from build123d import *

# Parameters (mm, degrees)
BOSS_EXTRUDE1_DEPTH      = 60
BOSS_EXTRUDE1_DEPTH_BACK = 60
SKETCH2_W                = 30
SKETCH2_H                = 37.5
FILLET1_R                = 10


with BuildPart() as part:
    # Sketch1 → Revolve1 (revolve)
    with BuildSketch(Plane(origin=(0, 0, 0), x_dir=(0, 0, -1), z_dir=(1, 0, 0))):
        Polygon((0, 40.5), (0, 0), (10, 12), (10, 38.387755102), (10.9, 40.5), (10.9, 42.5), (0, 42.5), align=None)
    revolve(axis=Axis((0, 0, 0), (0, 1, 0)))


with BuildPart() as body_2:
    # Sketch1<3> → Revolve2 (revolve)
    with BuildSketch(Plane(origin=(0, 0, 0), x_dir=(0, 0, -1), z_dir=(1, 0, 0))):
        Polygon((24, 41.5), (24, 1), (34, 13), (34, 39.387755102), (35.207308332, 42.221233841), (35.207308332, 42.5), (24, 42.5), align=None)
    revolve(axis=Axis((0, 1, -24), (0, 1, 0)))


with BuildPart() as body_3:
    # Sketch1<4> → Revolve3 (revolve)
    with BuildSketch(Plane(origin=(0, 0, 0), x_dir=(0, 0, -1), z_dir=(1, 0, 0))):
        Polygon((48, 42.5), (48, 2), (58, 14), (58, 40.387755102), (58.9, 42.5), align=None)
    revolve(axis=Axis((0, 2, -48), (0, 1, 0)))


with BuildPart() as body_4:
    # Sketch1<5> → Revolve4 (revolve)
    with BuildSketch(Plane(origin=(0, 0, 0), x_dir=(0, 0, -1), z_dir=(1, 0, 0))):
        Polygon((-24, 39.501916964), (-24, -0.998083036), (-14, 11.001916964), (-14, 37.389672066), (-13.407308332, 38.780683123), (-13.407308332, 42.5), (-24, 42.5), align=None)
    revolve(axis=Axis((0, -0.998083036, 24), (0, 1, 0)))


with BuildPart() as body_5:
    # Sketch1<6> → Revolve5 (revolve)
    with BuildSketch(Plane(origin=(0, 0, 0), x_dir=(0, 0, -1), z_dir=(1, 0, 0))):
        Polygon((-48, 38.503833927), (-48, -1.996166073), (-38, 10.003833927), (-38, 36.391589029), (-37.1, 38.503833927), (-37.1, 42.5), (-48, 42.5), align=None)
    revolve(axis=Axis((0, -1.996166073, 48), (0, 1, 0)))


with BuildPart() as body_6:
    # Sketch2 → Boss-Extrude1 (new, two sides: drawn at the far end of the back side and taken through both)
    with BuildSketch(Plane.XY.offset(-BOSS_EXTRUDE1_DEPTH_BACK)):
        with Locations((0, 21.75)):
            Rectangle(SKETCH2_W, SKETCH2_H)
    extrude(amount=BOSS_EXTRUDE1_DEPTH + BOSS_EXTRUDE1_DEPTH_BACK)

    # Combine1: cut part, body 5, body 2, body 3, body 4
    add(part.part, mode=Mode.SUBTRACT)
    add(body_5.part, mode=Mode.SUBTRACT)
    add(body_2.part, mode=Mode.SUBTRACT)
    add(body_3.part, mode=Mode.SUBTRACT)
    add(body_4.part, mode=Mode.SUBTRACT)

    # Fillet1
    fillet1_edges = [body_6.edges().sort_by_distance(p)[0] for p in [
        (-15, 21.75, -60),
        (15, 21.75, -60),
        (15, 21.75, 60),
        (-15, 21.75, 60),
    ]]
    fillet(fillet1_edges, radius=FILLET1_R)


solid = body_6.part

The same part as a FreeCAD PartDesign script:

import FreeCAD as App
import Part
import Sketcher
from FreeCAD import Vector


def edges_at(feature, points):
    """Names of the edges that pass closest to the given points."""
    edges = feature.Shape.Edges
    near = lambda p: min(range(len(edges)), key=lambda i: edges[i].distToShape(Part.Vertex(*p))[0])
    return sorted({f"Edge{near(p) + 1}" for p in points})

doc = App.newDocument("Part")
body = doc.addObject("PartDesign::Body", "Body")

# Sketch on YZ plane
sketch1 = body.newObject("Sketcher::SketchObject", "Sketch")
sketch1.AttachmentSupport = (doc.getObject("YZ_Plane"), [""])
sketch1.MapMode = "FlatFace"
sketch1.addGeometry([
    Part.LineSegment(Vector(0, 0, 0), Vector(12, -10, 0)),  # 0
    Part.LineSegment(Vector(12, -10, 0), Vector(38.4, -10, 0)),  # 1
    Part.LineSegment(Vector(38.4, -10, 0), Vector(40.5, -10.9, 0)),  # 2
    Part.LineSegment(Vector(40.5, -10.9, 0), Vector(42.5, -10.9, 0)),  # 3
    Part.LineSegment(Vector(42.5, -10.9, 0), Vector(42.5, 0, 0)),  # 4
    Part.LineSegment(Vector(42.5, 0, 0), Vector(0, 0, 0)),  # 5
], False)
sketch1.addConstraint([
    Sketcher.Constraint("Coincident", 0, 2, 1, 1),
    Sketcher.Constraint("Coincident", 1, 2, 2, 1),
    Sketcher.Constraint("Coincident", 2, 2, 3, 1),
    Sketcher.Constraint("Coincident", 3, 2, 4, 1),
    Sketcher.Constraint("Coincident", 4, 2, 5, 1),
    Sketcher.Constraint("Coincident", 5, 2, 0, 1),
    Sketcher.Constraint("Horizontal", 1),
    Sketcher.Constraint("Horizontal", 3),
    Sketcher.Constraint("Vertical", 4),
    Sketcher.Constraint("Horizontal", 5),
    Sketcher.Constraint("Coincident", 5, 2, -1, 1),
    Sketcher.Constraint("DistanceX", 3, 1, 3, 2, 2.0),
    Sketcher.Constraint("DistanceX", 5, 2, 5, 1, 42.5),
    Sketcher.Constraint("DistanceY", 4, 1, 4, 2, 10.9),
    Sketcher.Constraint("DistanceX", -1, 1, 0, 2, 12.0),
    Sketcher.Constraint("DistanceY", 0, 2, -1, 1, 10.0),
    Sketcher.Constraint("Distance", 2, 2.295992),
])
revolution = body.newObject("PartDesign::Revolution", "Revolution")
revolution.Profile = sketch1
revolution.ReferenceAxis = (sketch1, ["H_Axis"])
revolution.Angle = 360
body2 = doc.addObject("PartDesign::Body", "Body001")

# Sketch on YZ plane
sketch2 = body2.newObject("Sketcher::SketchObject", "Sketch001")
sketch2.AttachmentSupport = (doc.getObject("YZ_Plane001"), [""])
sketch2.MapMode = "FlatFace"
sketch2.addGeometry([
    Part.LineSegment(Vector(1, -24, 0), Vector(13, -34, 0)),  # 0
    Part.LineSegment(Vector(13, -34, 0), Vector(39.39, -34, 0)),  # 1
    Part.LineSegment(Vector(39.39, -34, 0), Vector(42.22, -35.21, 0)),  # 2
    Part.LineSegment(Vector(42.22, -35.21, 0), Vector(42.5, -35.21, 0)),  # 3
    Part.LineSegment(Vector(42.5, -35.21, 0), Vector(42.5, -24, 0)),  # 4
    Part.LineSegment(Vector(42.5, -24, 0), Vector(1, -24, 0)),  # 5
], False)
sketch2.addGeometry(Part.LineSegment(Vector(1, -24, 0), Vector(42.5, -24, 0)), True)  # axis
sketch2.addConstraint([
    Sketcher.Constraint("Coincident", 0, 2, 1, 1),
    Sketcher.Constraint("Coincident", 1, 2, 2, 1),
    Sketcher.Constraint("Coincident", 2, 2, 3, 1),
    Sketcher.Constraint("Coincident", 3, 2, 4, 1),
    Sketcher.Constraint("Coincident", 4, 2, 5, 1),
    Sketcher.Constraint("Coincident", 5, 2, 0, 1),
    Sketcher.Constraint("Horizontal", 1),
    Sketcher.Constraint("Horizontal", 3),
    Sketcher.Constraint("Vertical", 4),
    Sketcher.Constraint("Horizontal", 5),
    Sketcher.Constraint("Horizontal", 6),
    Sketcher.Constraint("Coincident", 6, 1, 5, 2),
    Sketcher.Constraint("Vertical", 3, 2, 6, 2),
    Sketcher.Constraint("DistanceX", 5, 2, 5, 1, 41.5),
    Sketcher.Constraint("DistanceX", -1, 1, 0, 2, 13.0),
    Sketcher.Constraint("DistanceY", 0, 2, -1, 1, 34.0),
    Sketcher.Constraint("DistanceY", 4, 2, -1, 1, 24.0),
    Sketcher.Constraint("DistanceX", -1, 1, 5, 2, 1.0),
    Sketcher.Constraint("DistanceY", 4, 1, 4, 2, 11.207308),
    Sketcher.Constraint("DistanceX", 1, 1, 1, 2, 26.387755),
    Sketcher.Constraint("DistanceX", 3, 1, 3, 2, 0.278766),
])
revolution2 = body2.newObject("PartDesign::Revolution", "Revolution001")
revolution2.Profile = sketch2
revolution2.ReferenceAxis = (sketch2, ["Axis0"])
revolution2.Angle = 360
body3 = doc.addObject("PartDesign::Body", "Body002")

# Sketch on YZ plane
sketch3 = body3.newObject("Sketcher::SketchObject", "Sketch002")
sketch3.AttachmentSupport = (doc.getObject("YZ_Plane002"), [""])
sketch3.MapMode = "FlatFace"
sketch3.addGeometry([
    Part.LineSegment(Vector(42.5, -48, 0), Vector(2, -48, 0)),  # 0
    Part.LineSegment(Vector(2, -48, 0), Vector(14, -58, 0)),  # 1
    Part.LineSegment(Vector(14, -58, 0), Vector(40.4, -58, 0)),  # 2
    Part.LineSegment(Vector(40.4, -58, 0), Vector(42.5, -58.9, 0)),  # 3
    Part.LineSegment(Vector(42.5, -58.9, 0), Vector(42.5, -48, 0)),  # 4
], False)
sketch3.addGeometry(Part.LineSegment(Vector(2, -48, 0), Vector(42.5, -48, 0)), True)  # axis
sketch3.addConstraint([
    Sketcher.Constraint("Coincident", 0, 2, 1, 1),
    Sketcher.Constraint("Coincident", 1, 2, 2, 1),
    Sketcher.Constraint("Coincident", 2, 2, 3, 1),
    Sketcher.Constraint("Coincident", 3, 2, 4, 1),
    Sketcher.Constraint("Coincident", 4, 2, 0, 1),
    Sketcher.Constraint("Horizontal", 0),
    Sketcher.Constraint("Horizontal", 2),
    Sketcher.Constraint("Vertical", 4),
    Sketcher.Constraint("Horizontal", 5),
    Sketcher.Constraint("Coincident", 5, 1, 0, 2),
    Sketcher.Constraint("Vertical", 3, 2, 5, 2),
    Sketcher.Constraint("DistanceX", 0, 2, 0, 1, 40.5),
    Sketcher.Constraint("DistanceY", 4, 1, 4, 2, 10.9),
    Sketcher.Constraint("DistanceX", -1, 1, 0, 2, 2.0),
    Sketcher.Constraint("DistanceY", 0, 2, -1, 1, 48.0),
    Sketcher.Constraint("DistanceX", -1, 1, 1, 2, 14.0),
    Sketcher.Constraint("DistanceY", 1, 2, -1, 1, 58.0),
    Sketcher.Constraint("Distance", 3, 2.295992),
])
revolution3 = body3.newObject("PartDesign::Revolution", "Revolution002")
revolution3.Profile = sketch3
revolution3.ReferenceAxis = (sketch3, ["Axis0"])
revolution3.Angle = 360
body4 = doc.addObject("PartDesign::Body", "Body003")

# Sketch on YZ plane
sketch4 = body4.newObject("Sketcher::SketchObject", "Sketch003")
sketch4.AttachmentSupport = (doc.getObject("YZ_Plane003"), [""])
sketch4.MapMode = "FlatFace"
sketch4.addGeometry([
    Part.LineSegment(Vector(-1, 24, 0), Vector(11, 14, 0)),  # 0
    Part.LineSegment(Vector(11, 14, 0), Vector(37.4, 14, 0)),  # 1
    Part.LineSegment(Vector(37.4, 14, 0), Vector(38.8, 13.4, 0)),  # 2
    Part.LineSegment(Vector(38.8, 13.4, 0), Vector(42.5, 13.4, 0)),  # 3
    Part.LineSegment(Vector(42.5, 13.4, 0), Vector(42.5, 24, 0)),  # 4
    Part.LineSegment(Vector(42.5, 24, 0), Vector(-1, 24, 0)),  # 5
], False)
sketch4.addGeometry(Part.LineSegment(Vector(-1, 24, 0), Vector(42.5, 24, 0)), True)  # axis
sketch4.addConstraint([
    Sketcher.Constraint("Coincident", 0, 2, 1, 1),
    Sketcher.Constraint("Coincident", 1, 2, 2, 1),
    Sketcher.Constraint("Coincident", 2, 2, 3, 1),
    Sketcher.Constraint("Coincident", 3, 2, 4, 1),
    Sketcher.Constraint("Coincident", 4, 2, 5, 1),
    Sketcher.Constraint("Coincident", 5, 2, 0, 1),
    Sketcher.Constraint("Horizontal", 1),
    Sketcher.Constraint("Horizontal", 3),
    Sketcher.Constraint("Vertical", 4),
    Sketcher.Constraint("Horizontal", 5),
    Sketcher.Constraint("Horizontal", 6),
    Sketcher.Constraint("Coincident", 6, 1, 5, 2),
    Sketcher.Constraint("Vertical", 3, 2, 6, 2),
    Sketcher.Constraint("DistanceY", -1, 1, 0, 2, 14.0),
    Sketcher.Constraint("DistanceY", -1, 1, 4, 2, 24.0),
    Sketcher.Constraint("DistanceX", 5, 2, 0, 2, 12.0),
    Sketcher.Constraint("DistanceX", -1, 1, 3, 2, 42.5),
    Sketcher.Constraint("DistanceY", 4, 1, 4, 2, 10.592692),
    Sketcher.Constraint("DistanceX", 1, 1, 1, 2, 26.387755),
    Sketcher.Constraint("DistanceX", 3, 1, 3, 2, 3.719317),
    Sketcher.Constraint("DistanceX", 5, 2, 5, 1, 43.498083),
])
revolution4 = body4.newObject("PartDesign::Revolution", "Revolution003")
revolution4.Profile = sketch4
revolution4.ReferenceAxis = (sketch4, ["Axis0"])
revolution4.Angle = 360
body5 = doc.addObject("PartDesign::Body", "Body004")

# Sketch on YZ plane
sketch5 = body5.newObject("Sketcher::SketchObject", "Sketch004")
sketch5.AttachmentSupport = (doc.getObject("YZ_Plane004"), [""])
sketch5.MapMode = "FlatFace"
sketch5.addGeometry([
    Part.LineSegment(Vector(-2, 48, 0), Vector(10, 38, 0)),  # 0
    Part.LineSegment(Vector(10, 38, 0), Vector(36.4, 38, 0)),  # 1
    Part.LineSegment(Vector(36.4, 38, 0), Vector(38.5, 37.1, 0)),  # 2
    Part.LineSegment(Vector(38.5, 37.1, 0), Vector(42.5, 37.1, 0)),  # 3
    Part.LineSegment(Vector(42.5, 37.1, 0), Vector(42.5, 48, 0)),  # 4
    Part.LineSegment(Vector(42.5, 48, 0), Vector(-2, 48, 0)),  # 5
], False)
sketch5.addGeometry(Part.LineSegment(Vector(-2, 48, 0), Vector(42.5, 48, 0)), True)  # axis
sketch5.addConstraint([
    Sketcher.Constraint("Coincident", 0, 2, 1, 1),
    Sketcher.Constraint("Coincident", 1, 2, 2, 1),
    Sketcher.Constraint("Coincident", 2, 2, 3, 1),
    Sketcher.Constraint("Coincident", 3, 2, 4, 1),
    Sketcher.Constraint("Coincident", 4, 2, 5, 1),
    Sketcher.Constraint("Coincident", 5, 2, 0, 1),
    Sketcher.Constraint("Horizontal", 1),
    Sketcher.Constraint("Horizontal", 3),
    Sketcher.Constraint("Vertical", 4),
    Sketcher.Constraint("Horizontal", 5),
    Sketcher.Constraint("Horizontal", 6),
    Sketcher.Constraint("Coincident", 6, 1, 5, 2),
    Sketcher.Constraint("Vertical", 3, 2, 6, 2),
    Sketcher.Constraint("DistanceY", 4, 1, 4, 2, 10.9),
    Sketcher.Constraint("DistanceY", -1, 1, 0, 2, 38.0),
    Sketcher.Constraint("DistanceY", -1, 1, 4, 2, 48.0),
    Sketcher.Constraint("DistanceX", 5, 2, 0, 2, 12.0),
    Sketcher.Constraint("DistanceX", -1, 1, 3, 2, 42.5),
    Sketcher.Constraint("DistanceX", 0, 2, 2, 2, 28.5),
    Sketcher.Constraint("Distance", 2, 2.295992),
    Sketcher.Constraint("DistanceX", 3, 1, 3, 2, 3.996166),
])
revolution5 = body5.newObject("PartDesign::Revolution", "Revolution004")
revolution5.Profile = sketch5
revolution5.ReferenceAxis = (sketch5, ["Axis0"])
revolution5.Angle = 360
body6 = doc.addObject("PartDesign::Body", "Body005")

# Sketch on XY plane
sketch6 = body6.newObject("Sketcher::SketchObject", "Sketch005")
sketch6.AttachmentSupport = (doc.getObject("XY_Plane005"), [""])
sketch6.MapMode = "FlatFace"
sketch6.addGeometry([
    Part.LineSegment(Vector(-15, 40, 0), Vector(-15, 3, 0)),
    Part.LineSegment(Vector(-15, 3, 0), Vector(15, 3, 0)),
    Part.LineSegment(Vector(15, 3, 0), Vector(15, 40, 0)),
    Part.LineSegment(Vector(15, 40, 0), Vector(-15, 40, 0)),
], False)
sketch6.addConstraint([
    Sketcher.Constraint("Coincident", 0, 2, 1, 1),
    Sketcher.Constraint("Coincident", 1, 2, 2, 1),
    Sketcher.Constraint("Coincident", 2, 2, 3, 1),
    Sketcher.Constraint("Coincident", 3, 2, 0, 1),
    Sketcher.Constraint("Vertical", 0),
    Sketcher.Constraint("Horizontal", 1),
    Sketcher.Constraint("Vertical", 2),
    Sketcher.Constraint("Horizontal", 3),
    Sketcher.Constraint("DistanceX", 1, 1, 1, 2, 30.0),
    Sketcher.Constraint("DistanceY", 0, 2, 0, 1, 37.5),
    Sketcher.Constraint("DistanceX", 0, 2, -1, 1, 15.0),
    Sketcher.Constraint("DistanceY", -1, 1, 0, 2, 3.0),
])
pad1 = body6.newObject("PartDesign::Pad", "Pad")
pad1.Profile = sketch6
pad1.Type = "TwoLengths"
pad1.Length = 60
pad1.Length2 = 60
doc.recompute()

boolean = body6.newObject("PartDesign::Boolean", "Boolean")
boolean.Type = "Cut"
boolean.addObjects([body])
doc.recompute()

boolean2 = body6.newObject("PartDesign::Boolean", "Boolean001")
boolean2.Type = "Cut"
boolean2.addObjects([body5])
doc.recompute()

boolean3 = body6.newObject("PartDesign::Boolean", "Boolean002")
boolean3.Type = "Cut"
boolean3.addObjects([body2])
doc.recompute()

boolean4 = body6.newObject("PartDesign::Boolean", "Boolean003")
boolean4.Type = "Cut"
boolean4.addObjects([body3])
doc.recompute()

boolean5 = body6.newObject("PartDesign::Boolean", "Boolean004")
boolean5.Type = "Cut"
boolean5.addObjects([body4])
doc.recompute()

fillet = body6.newObject("PartDesign::Fillet", "Fillet")
fillet.Base = (boolean5, edges_at(boolean5, [
    (-15, 21.75, -60),
    (15, 21.75, -60),
    (15, 21.75, 60),
    (-15, 21.75, 60),
]))
fillet.Radius = 10

doc.recompute()
